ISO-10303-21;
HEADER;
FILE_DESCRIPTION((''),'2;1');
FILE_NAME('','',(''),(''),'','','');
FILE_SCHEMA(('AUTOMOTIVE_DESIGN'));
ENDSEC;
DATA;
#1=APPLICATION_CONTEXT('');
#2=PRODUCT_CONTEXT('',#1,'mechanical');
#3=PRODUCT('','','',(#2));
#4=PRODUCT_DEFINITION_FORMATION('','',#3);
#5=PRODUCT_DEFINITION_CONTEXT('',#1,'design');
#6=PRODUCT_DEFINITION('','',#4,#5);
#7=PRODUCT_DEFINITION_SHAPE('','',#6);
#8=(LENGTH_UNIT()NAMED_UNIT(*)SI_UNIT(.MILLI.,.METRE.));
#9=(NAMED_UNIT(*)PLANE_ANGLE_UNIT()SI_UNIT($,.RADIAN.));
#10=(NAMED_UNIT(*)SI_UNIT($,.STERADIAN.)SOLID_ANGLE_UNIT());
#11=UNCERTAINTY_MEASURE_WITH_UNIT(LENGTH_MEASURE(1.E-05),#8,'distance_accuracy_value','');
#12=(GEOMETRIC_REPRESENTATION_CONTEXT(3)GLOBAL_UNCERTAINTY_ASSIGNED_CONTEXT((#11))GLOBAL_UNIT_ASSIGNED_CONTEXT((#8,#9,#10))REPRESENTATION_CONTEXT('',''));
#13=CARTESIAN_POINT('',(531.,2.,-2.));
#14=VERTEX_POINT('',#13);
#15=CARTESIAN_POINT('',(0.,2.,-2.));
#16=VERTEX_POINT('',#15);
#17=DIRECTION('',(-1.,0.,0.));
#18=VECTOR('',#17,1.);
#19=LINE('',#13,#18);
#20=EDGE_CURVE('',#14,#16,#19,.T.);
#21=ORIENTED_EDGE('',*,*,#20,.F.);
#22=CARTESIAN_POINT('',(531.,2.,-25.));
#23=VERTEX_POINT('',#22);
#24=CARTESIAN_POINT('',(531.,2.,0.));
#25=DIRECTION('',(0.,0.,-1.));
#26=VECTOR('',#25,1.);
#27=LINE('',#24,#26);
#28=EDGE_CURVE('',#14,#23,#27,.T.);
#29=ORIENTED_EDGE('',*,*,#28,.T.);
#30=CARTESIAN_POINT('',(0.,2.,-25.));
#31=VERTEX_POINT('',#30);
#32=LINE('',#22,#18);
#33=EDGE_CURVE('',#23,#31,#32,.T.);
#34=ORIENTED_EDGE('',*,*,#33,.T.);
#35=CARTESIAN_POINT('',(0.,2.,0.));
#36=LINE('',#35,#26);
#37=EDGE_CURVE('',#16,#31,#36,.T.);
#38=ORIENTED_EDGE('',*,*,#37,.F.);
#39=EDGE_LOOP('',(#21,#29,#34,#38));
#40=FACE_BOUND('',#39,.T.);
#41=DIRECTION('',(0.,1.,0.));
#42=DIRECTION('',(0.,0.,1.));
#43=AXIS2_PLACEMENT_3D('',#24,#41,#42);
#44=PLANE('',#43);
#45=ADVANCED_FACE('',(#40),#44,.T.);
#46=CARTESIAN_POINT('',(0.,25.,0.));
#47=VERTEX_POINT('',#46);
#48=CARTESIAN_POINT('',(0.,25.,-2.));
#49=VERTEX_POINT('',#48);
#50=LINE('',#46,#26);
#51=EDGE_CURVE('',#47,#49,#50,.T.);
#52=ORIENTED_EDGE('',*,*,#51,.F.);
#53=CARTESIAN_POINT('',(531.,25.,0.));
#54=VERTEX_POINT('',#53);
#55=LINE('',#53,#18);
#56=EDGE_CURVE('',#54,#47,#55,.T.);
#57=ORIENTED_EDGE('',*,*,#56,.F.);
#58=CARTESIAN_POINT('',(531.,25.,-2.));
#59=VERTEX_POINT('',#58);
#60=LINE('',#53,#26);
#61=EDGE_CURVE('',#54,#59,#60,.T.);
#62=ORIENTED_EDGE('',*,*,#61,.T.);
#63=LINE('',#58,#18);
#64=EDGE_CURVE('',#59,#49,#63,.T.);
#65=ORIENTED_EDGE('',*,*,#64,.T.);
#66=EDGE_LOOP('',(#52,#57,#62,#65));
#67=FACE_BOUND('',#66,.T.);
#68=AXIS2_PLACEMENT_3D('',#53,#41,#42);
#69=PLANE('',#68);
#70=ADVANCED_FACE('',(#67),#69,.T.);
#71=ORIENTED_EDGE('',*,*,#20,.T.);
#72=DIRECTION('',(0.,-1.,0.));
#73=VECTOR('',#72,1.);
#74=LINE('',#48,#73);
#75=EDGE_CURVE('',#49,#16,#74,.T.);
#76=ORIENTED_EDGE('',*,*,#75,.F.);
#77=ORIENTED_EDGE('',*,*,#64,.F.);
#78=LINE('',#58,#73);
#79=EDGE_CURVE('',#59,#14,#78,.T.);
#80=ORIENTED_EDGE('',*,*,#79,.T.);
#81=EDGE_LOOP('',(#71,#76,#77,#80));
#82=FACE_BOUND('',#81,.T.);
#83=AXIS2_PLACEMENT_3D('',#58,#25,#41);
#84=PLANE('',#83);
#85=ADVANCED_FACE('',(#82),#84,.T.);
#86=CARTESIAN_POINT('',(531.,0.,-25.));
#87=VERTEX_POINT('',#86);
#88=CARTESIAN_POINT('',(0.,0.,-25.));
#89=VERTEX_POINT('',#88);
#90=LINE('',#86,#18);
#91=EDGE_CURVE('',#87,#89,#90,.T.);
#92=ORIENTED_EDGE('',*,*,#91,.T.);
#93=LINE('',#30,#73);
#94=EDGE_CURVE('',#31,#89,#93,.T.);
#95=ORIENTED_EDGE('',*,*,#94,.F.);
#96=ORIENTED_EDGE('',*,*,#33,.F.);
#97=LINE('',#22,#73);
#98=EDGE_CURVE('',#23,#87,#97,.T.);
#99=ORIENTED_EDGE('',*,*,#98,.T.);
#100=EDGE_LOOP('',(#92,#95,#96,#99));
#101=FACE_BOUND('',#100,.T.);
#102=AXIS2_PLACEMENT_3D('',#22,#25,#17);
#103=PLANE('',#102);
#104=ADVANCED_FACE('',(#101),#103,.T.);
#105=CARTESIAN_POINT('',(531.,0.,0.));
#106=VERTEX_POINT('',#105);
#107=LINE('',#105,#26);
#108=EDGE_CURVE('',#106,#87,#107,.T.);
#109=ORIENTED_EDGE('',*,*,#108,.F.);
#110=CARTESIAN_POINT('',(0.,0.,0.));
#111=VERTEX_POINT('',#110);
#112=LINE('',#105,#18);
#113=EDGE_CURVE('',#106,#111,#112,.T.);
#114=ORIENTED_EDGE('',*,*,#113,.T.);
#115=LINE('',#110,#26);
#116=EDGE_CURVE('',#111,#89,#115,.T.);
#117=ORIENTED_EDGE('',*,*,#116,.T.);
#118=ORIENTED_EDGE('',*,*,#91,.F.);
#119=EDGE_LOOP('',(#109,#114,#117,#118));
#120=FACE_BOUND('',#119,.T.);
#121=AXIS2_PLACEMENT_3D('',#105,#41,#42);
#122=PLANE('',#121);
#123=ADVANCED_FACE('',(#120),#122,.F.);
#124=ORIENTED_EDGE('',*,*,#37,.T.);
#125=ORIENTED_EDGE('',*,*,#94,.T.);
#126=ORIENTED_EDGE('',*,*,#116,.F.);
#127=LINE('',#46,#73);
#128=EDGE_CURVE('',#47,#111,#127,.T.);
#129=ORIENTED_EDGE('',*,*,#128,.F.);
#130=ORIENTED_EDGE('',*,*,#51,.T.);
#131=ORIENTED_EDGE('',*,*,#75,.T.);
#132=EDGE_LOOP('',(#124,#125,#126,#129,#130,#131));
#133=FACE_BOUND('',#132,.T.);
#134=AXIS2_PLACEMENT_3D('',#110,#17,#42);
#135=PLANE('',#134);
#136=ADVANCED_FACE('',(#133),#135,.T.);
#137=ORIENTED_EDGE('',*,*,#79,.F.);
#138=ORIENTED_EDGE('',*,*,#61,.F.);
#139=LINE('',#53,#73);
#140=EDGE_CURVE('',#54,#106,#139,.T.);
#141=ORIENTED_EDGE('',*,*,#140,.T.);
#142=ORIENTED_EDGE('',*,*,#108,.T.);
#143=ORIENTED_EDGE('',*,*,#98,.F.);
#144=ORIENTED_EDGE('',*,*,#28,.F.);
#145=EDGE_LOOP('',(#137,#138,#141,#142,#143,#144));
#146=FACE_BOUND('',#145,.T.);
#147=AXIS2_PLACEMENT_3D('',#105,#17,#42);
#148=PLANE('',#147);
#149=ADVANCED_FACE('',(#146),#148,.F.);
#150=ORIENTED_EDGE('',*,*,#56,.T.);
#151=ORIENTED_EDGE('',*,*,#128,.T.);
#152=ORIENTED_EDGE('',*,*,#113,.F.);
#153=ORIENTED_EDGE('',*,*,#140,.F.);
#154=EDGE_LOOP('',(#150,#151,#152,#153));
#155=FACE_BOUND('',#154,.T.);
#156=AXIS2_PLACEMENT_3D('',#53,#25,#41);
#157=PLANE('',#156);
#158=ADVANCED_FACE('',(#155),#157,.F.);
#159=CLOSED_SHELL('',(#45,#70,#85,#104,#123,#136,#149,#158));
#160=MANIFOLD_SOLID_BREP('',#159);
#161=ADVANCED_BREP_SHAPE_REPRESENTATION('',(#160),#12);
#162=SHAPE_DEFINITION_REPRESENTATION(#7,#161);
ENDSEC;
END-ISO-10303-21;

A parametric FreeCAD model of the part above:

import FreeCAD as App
import Part
import Sketcher

V = App.Vector
Q = App.Units.Quantity

doc = App.newDocument("Part")
params = doc.addObject("Spreadsheet::Sheet", "Params")
for row, (alias, value) in enumerate([
    ("sketch1_width", "25 mm"),
    ("sketch1_width2", "2 mm"),
    ("pad1_length", "531 mm"),
], start=1):
    params.set(f"A{row}", alias)
    params.set(f"B{row}", "=" + value)
    params.setAlias(f"B{row}", alias)

body = doc.addObject("PartDesign::Body", "Body")

# Sketch on YZ plane
sketch1 = body.newObject("Sketcher::SketchObject", "Sketch")
sketch1.AttachmentSupport = (doc.getObject("YZ_Plane"), [""])
sketch1.MapMode = "FlatFace"
sketch1.addGeometry(Part.LineSegment(V(25, 0, 0), V(0, 0, 0)), False)
sketch1.addGeometry(Part.LineSegment(V(0, 0, 0), V(0, -25, 0)), False)
sketch1.addGeometry(Part.LineSegment(V(0, -25, 0), V(2, -25, 0)), False)
sketch1.addGeometry(Part.LineSegment(V(2, -25, 0), V(2, -2, 0)), False)
sketch1.addGeometry(Part.LineSegment(V(2, -2, 0), V(25, -2, 0)), False)
sketch1.addGeometry(Part.LineSegment(V(25, -2, 0), V(25, 0, 0)), False)
sketch1.addConstraint(Sketcher.Constraint("Coincident", 0, 2, 1, 1))
sketch1.addConstraint(Sketcher.Constraint("Coincident", 1, 2, 2, 1))
sketch1.addConstraint(Sketcher.Constraint("Coincident", 2, 2, 3, 1))
sketch1.addConstraint(Sketcher.Constraint("Coincident", 3, 2, 4, 1))
sketch1.addConstraint(Sketcher.Constraint("Coincident", 4, 2, 5, 1))
sketch1.addConstraint(Sketcher.Constraint("Coincident", 5, 2, 0, 1))
sketch1.addConstraint(Sketcher.Constraint("Horizontal", 0))
sketch1.addConstraint(Sketcher.Constraint("Vertical", 1))
sketch1.addConstraint(Sketcher.Constraint("Horizontal", 2))
sketch1.addConstraint(Sketcher.Constraint("Vertical", 3))
sketch1.addConstraint(Sketcher.Constraint("Horizontal", 4))
sketch1.addConstraint(Sketcher.Constraint("Vertical", 5))
sketch1.addConstraint(Sketcher.Constraint("Coincident", 0, 2, -1, 1))
sketch1.addConstraint(Sketcher.Constraint("Equal", 0, 1))
sketch1.addConstraint(Sketcher.Constraint("Equal", 4, 3))
sketch1.addConstraint(Sketcher.Constraint("DistanceX", 0, 2, 0, 1, Q("25 mm")))
sketch1.addConstraint(Sketcher.Constraint("DistanceX", 2, 1, 2, 2, Q("2 mm")))
sketch1.setExpression("Constraints[15]", "Params.sketch1_width")
sketch1.setExpression("Constraints[16]", "Params.sketch1_width2")
pad1 = body.newObject("PartDesign::Pad", "Pad")
pad1.Profile = sketch1
pad1.setExpression("Length", "Params.pad1_length")

doc.recompute()
